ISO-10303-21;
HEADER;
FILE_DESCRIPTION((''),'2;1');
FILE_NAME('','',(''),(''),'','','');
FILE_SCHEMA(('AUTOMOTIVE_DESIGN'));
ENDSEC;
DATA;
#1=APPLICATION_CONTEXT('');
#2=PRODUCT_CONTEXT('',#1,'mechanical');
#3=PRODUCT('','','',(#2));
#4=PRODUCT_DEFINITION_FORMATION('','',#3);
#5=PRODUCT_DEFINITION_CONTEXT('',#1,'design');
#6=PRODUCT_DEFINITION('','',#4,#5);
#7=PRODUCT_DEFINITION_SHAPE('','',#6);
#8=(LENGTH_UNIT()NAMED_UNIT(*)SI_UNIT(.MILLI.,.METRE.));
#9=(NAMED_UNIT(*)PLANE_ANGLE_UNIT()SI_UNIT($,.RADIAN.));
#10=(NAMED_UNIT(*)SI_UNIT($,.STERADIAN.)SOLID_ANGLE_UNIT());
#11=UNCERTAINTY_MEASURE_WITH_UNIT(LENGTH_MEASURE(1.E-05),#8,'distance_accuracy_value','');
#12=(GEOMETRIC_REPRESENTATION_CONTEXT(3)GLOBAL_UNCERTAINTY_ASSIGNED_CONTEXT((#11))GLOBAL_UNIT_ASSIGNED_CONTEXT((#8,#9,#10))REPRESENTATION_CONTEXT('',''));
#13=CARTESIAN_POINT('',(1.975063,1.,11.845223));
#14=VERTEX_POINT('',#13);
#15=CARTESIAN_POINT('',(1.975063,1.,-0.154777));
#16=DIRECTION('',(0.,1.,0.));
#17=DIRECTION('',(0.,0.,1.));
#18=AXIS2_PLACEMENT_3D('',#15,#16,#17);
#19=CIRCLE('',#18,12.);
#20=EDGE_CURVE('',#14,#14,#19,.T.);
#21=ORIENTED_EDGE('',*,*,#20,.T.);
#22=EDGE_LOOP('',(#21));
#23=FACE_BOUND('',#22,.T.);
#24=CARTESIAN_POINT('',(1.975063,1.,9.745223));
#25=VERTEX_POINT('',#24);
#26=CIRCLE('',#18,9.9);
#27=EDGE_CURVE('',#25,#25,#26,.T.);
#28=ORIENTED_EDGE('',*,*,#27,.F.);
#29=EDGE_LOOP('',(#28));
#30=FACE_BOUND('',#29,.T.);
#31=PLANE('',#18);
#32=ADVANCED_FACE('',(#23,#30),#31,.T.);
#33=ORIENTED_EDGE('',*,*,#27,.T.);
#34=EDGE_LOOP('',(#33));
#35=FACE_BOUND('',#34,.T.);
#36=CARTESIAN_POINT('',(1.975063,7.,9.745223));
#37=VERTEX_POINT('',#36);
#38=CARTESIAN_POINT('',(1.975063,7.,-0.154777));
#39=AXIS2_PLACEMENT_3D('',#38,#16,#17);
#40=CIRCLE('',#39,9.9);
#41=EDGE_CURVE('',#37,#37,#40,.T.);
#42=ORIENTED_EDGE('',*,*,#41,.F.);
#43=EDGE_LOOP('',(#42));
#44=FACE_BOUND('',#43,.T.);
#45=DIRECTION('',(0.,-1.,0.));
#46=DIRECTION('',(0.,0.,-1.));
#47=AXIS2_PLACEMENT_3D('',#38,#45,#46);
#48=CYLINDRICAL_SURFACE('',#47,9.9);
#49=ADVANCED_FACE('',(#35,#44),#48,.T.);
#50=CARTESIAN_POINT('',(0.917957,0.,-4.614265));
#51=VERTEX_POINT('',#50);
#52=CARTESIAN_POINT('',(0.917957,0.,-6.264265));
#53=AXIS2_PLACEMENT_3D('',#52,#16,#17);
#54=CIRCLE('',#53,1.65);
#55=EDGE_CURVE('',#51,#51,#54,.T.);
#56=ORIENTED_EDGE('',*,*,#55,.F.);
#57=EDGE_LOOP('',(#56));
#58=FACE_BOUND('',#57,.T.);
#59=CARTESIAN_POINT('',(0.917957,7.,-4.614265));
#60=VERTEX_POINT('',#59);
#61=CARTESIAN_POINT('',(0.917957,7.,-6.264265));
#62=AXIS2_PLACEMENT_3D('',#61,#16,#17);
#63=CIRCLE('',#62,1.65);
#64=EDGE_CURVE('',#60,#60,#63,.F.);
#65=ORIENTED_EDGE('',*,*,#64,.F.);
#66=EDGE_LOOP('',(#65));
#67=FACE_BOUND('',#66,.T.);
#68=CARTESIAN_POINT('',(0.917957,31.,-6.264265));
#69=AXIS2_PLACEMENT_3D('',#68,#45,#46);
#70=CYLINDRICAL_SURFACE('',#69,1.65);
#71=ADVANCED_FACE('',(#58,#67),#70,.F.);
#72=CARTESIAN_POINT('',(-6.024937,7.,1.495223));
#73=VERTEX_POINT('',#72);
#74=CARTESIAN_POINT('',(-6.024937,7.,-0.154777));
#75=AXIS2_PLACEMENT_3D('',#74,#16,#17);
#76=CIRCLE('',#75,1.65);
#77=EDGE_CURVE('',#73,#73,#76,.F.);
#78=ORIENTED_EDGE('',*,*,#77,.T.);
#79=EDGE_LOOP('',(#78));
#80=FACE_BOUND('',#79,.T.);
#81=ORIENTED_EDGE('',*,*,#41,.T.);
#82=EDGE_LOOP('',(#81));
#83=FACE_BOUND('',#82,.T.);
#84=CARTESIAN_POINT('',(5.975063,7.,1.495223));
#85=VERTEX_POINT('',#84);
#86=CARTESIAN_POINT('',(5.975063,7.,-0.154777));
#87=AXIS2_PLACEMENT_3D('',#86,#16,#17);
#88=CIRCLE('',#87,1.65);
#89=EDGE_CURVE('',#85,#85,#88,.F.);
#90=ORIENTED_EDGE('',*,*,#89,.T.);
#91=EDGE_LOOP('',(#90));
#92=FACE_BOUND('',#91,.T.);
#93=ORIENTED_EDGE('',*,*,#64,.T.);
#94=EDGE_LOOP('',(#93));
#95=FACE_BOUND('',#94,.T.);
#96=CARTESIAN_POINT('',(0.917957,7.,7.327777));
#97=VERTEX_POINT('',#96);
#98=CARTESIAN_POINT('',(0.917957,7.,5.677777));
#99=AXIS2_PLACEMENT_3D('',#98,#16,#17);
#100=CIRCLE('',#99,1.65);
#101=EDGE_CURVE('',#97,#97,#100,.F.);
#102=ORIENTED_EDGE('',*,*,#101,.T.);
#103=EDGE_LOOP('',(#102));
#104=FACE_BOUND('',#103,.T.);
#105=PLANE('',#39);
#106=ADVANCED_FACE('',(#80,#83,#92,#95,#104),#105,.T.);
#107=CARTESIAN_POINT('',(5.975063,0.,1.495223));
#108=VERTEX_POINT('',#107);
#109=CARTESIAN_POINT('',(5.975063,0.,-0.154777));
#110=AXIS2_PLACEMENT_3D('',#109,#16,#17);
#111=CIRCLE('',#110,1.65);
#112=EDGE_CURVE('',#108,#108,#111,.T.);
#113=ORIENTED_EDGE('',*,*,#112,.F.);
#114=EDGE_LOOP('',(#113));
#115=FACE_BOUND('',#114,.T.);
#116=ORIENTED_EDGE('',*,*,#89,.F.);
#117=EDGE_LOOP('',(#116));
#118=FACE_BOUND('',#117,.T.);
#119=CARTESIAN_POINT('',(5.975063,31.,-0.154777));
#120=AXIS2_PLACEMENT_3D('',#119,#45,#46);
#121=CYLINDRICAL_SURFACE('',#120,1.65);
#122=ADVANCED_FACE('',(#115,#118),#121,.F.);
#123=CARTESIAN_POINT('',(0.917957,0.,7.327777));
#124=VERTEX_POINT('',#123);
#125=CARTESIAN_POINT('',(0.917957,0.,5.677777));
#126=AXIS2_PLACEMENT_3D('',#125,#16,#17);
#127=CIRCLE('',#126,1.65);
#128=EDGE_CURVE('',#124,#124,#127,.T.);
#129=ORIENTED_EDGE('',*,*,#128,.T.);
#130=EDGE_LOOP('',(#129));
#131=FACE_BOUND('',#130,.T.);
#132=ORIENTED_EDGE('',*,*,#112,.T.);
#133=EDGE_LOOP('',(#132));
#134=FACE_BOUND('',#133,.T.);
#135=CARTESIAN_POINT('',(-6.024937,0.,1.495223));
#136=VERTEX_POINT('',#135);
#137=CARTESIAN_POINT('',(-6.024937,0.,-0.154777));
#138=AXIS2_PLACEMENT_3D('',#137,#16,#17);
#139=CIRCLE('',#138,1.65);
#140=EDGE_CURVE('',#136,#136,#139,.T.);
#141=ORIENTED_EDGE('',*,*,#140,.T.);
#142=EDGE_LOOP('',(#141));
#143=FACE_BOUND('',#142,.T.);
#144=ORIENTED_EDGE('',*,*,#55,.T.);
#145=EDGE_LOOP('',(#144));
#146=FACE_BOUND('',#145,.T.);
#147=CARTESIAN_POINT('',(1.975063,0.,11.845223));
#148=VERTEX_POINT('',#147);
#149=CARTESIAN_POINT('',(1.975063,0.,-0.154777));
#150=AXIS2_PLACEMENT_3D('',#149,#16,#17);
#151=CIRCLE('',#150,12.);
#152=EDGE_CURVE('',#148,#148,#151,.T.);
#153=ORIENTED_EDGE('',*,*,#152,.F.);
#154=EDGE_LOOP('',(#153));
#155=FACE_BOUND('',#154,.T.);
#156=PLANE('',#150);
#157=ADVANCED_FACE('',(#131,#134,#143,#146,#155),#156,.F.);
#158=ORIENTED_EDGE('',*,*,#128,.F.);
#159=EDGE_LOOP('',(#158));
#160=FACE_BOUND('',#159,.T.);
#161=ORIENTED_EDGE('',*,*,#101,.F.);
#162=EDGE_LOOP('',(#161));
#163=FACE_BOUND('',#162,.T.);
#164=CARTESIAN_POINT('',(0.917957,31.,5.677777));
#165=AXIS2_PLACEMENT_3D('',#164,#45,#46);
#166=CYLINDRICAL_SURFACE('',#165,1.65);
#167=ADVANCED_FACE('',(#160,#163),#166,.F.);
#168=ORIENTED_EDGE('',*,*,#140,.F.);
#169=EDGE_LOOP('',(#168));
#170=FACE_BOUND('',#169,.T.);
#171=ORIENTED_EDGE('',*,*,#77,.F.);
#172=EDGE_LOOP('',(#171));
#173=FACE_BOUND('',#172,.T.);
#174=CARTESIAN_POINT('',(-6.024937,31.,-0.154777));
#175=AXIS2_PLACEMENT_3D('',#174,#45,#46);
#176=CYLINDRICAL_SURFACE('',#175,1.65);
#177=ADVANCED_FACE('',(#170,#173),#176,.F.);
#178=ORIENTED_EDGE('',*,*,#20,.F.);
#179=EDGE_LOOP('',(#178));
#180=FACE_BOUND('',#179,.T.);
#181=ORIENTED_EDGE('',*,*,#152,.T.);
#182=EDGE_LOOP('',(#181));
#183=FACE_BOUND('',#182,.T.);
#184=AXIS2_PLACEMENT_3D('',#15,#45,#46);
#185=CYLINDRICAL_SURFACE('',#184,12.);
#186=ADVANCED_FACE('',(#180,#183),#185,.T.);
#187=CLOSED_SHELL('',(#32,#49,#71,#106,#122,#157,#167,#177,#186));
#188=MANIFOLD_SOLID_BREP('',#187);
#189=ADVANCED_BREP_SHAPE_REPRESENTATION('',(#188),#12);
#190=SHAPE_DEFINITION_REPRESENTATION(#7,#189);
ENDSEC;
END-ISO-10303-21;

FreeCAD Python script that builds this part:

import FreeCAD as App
import Part
import Sketcher
Q = App.Units.Quantity

doc = App.newDocument("Part")
body = doc.addObject("PartDesign::Body", "Body")

sketch1 = doc.addObject("Sketcher::SketchObject", "Sketch")
body.addObject(sketch1)
sketch1.AttachmentSupport = (doc.XZ_Plane, [""])
sketch1.MapMode = "FlatFace"
sketch1.addGeometry(Part.Circle(App.Vector(2, 0, 0), App.Vector(0, 0, 1), 10), False)
sketch1.addConstraint([
    Sketcher.Constraint("Diameter", 0, Q("19.8 mm")),
    Sketcher.Constraint("DistanceX", -1, 1, 0, 3, Q("1.975063 mm")),
    Sketcher.Constraint("DistanceY", 0, 3, -1, 1, Q("0.154777 mm")),
])
pad1 = doc.addObject("PartDesign::Pad", "Pad")
body.addObject(pad1)
pad1.Profile = sketch1
pad1.Length = 7
pad1.Reversed = True

sketch2 = doc.addObject("Sketcher::SketchObject", "Sketch001")
body.addObject(sketch2)
sketch2.AttachmentSupport = (doc.XZ_Plane, [""])
sketch2.MapMode = "FlatFace"
sketch2.addGeometry(Part.Circle(App.Vector(2, 0, 0), App.Vector(0, 0, 1), 12), False)
sketch2.addConstraint([
    Sketcher.Constraint("Diameter", 0, Q("24 mm")),
    Sketcher.Constraint("DistanceX", -1, 1, 0, 3, Q("1.975063 mm")),
    Sketcher.Constraint("DistanceY", 0, 3, -1, 1, Q("0.154777 mm")),
])
pad2 = doc.addObject("PartDesign::Pad", "Pad001")
body.addObject(pad2)
pad2.Profile = sketch2
pad2.Length = 1
pad2.Reversed = True

sketch3 = doc.addObject("Sketcher::SketchObject", "Sketch002")
body.addObject(sketch3)
sketch3.AttachmentSupport = (doc.XZ_Plane, [""])
sketch3.MapMode = "FlatFace"
sketch3.addGeometry([
    Part.Circle(App.Vector(0.9, -6.3, 0), App.Vector(0, 0, 1), 1.6),
    Part.Circle(App.Vector(0.9, 5.7, 0), App.Vector(0, 0, 1), 1.6),
    Part.Circle(App.Vector(-6, -0.2, 0), App.Vector(0, 0, 1), 1.6),
    Part.Circle(App.Vector(6, -0.2, 0), App.Vector(0, 0, 1), 1.6),
], False)
sketch3.addConstraint([
    Sketcher.Constraint("Equal", 0, 1),
    Sketcher.Constraint("Equal", 1, 2),
    Sketcher.Constraint("Equal", 2, 3),
    Sketcher.Constraint("Horizontal", 2, 3, 3, 3),
    Sketcher.Constraint("Vertical", 0, 3, 1, 3),
    Sketcher.Constraint("Diameter", 0, Q("3.3 mm")),
    Sketcher.Constraint("DistanceX", 2, 3, 3, 3, Q("12 mm")),
    Sketcher.Constraint("DistanceY", 0, 3, 1, 3, Q("11.942042 mm")),
    Sketcher.Constraint("DistanceX", -1, 1, 0, 3, Q("0.917957 mm")),
    Sketcher.Constraint("DistanceY", 0, 3, -1, 1, Q("6.264265 mm")),
    Sketcher.Constraint("DistanceX", 2, 3, -1, 1, Q("6.024937 mm")),
    Sketcher.Constraint("DistanceY", 2, 3, -1, 1, Q("0.154777 mm")),
])
pocket1 = doc.addObject("PartDesign::Pocket", "Pocket")
body.addObject(pocket1)
pocket1.Profile = sketch3
pocket1.Length = 31

doc.recompute()
